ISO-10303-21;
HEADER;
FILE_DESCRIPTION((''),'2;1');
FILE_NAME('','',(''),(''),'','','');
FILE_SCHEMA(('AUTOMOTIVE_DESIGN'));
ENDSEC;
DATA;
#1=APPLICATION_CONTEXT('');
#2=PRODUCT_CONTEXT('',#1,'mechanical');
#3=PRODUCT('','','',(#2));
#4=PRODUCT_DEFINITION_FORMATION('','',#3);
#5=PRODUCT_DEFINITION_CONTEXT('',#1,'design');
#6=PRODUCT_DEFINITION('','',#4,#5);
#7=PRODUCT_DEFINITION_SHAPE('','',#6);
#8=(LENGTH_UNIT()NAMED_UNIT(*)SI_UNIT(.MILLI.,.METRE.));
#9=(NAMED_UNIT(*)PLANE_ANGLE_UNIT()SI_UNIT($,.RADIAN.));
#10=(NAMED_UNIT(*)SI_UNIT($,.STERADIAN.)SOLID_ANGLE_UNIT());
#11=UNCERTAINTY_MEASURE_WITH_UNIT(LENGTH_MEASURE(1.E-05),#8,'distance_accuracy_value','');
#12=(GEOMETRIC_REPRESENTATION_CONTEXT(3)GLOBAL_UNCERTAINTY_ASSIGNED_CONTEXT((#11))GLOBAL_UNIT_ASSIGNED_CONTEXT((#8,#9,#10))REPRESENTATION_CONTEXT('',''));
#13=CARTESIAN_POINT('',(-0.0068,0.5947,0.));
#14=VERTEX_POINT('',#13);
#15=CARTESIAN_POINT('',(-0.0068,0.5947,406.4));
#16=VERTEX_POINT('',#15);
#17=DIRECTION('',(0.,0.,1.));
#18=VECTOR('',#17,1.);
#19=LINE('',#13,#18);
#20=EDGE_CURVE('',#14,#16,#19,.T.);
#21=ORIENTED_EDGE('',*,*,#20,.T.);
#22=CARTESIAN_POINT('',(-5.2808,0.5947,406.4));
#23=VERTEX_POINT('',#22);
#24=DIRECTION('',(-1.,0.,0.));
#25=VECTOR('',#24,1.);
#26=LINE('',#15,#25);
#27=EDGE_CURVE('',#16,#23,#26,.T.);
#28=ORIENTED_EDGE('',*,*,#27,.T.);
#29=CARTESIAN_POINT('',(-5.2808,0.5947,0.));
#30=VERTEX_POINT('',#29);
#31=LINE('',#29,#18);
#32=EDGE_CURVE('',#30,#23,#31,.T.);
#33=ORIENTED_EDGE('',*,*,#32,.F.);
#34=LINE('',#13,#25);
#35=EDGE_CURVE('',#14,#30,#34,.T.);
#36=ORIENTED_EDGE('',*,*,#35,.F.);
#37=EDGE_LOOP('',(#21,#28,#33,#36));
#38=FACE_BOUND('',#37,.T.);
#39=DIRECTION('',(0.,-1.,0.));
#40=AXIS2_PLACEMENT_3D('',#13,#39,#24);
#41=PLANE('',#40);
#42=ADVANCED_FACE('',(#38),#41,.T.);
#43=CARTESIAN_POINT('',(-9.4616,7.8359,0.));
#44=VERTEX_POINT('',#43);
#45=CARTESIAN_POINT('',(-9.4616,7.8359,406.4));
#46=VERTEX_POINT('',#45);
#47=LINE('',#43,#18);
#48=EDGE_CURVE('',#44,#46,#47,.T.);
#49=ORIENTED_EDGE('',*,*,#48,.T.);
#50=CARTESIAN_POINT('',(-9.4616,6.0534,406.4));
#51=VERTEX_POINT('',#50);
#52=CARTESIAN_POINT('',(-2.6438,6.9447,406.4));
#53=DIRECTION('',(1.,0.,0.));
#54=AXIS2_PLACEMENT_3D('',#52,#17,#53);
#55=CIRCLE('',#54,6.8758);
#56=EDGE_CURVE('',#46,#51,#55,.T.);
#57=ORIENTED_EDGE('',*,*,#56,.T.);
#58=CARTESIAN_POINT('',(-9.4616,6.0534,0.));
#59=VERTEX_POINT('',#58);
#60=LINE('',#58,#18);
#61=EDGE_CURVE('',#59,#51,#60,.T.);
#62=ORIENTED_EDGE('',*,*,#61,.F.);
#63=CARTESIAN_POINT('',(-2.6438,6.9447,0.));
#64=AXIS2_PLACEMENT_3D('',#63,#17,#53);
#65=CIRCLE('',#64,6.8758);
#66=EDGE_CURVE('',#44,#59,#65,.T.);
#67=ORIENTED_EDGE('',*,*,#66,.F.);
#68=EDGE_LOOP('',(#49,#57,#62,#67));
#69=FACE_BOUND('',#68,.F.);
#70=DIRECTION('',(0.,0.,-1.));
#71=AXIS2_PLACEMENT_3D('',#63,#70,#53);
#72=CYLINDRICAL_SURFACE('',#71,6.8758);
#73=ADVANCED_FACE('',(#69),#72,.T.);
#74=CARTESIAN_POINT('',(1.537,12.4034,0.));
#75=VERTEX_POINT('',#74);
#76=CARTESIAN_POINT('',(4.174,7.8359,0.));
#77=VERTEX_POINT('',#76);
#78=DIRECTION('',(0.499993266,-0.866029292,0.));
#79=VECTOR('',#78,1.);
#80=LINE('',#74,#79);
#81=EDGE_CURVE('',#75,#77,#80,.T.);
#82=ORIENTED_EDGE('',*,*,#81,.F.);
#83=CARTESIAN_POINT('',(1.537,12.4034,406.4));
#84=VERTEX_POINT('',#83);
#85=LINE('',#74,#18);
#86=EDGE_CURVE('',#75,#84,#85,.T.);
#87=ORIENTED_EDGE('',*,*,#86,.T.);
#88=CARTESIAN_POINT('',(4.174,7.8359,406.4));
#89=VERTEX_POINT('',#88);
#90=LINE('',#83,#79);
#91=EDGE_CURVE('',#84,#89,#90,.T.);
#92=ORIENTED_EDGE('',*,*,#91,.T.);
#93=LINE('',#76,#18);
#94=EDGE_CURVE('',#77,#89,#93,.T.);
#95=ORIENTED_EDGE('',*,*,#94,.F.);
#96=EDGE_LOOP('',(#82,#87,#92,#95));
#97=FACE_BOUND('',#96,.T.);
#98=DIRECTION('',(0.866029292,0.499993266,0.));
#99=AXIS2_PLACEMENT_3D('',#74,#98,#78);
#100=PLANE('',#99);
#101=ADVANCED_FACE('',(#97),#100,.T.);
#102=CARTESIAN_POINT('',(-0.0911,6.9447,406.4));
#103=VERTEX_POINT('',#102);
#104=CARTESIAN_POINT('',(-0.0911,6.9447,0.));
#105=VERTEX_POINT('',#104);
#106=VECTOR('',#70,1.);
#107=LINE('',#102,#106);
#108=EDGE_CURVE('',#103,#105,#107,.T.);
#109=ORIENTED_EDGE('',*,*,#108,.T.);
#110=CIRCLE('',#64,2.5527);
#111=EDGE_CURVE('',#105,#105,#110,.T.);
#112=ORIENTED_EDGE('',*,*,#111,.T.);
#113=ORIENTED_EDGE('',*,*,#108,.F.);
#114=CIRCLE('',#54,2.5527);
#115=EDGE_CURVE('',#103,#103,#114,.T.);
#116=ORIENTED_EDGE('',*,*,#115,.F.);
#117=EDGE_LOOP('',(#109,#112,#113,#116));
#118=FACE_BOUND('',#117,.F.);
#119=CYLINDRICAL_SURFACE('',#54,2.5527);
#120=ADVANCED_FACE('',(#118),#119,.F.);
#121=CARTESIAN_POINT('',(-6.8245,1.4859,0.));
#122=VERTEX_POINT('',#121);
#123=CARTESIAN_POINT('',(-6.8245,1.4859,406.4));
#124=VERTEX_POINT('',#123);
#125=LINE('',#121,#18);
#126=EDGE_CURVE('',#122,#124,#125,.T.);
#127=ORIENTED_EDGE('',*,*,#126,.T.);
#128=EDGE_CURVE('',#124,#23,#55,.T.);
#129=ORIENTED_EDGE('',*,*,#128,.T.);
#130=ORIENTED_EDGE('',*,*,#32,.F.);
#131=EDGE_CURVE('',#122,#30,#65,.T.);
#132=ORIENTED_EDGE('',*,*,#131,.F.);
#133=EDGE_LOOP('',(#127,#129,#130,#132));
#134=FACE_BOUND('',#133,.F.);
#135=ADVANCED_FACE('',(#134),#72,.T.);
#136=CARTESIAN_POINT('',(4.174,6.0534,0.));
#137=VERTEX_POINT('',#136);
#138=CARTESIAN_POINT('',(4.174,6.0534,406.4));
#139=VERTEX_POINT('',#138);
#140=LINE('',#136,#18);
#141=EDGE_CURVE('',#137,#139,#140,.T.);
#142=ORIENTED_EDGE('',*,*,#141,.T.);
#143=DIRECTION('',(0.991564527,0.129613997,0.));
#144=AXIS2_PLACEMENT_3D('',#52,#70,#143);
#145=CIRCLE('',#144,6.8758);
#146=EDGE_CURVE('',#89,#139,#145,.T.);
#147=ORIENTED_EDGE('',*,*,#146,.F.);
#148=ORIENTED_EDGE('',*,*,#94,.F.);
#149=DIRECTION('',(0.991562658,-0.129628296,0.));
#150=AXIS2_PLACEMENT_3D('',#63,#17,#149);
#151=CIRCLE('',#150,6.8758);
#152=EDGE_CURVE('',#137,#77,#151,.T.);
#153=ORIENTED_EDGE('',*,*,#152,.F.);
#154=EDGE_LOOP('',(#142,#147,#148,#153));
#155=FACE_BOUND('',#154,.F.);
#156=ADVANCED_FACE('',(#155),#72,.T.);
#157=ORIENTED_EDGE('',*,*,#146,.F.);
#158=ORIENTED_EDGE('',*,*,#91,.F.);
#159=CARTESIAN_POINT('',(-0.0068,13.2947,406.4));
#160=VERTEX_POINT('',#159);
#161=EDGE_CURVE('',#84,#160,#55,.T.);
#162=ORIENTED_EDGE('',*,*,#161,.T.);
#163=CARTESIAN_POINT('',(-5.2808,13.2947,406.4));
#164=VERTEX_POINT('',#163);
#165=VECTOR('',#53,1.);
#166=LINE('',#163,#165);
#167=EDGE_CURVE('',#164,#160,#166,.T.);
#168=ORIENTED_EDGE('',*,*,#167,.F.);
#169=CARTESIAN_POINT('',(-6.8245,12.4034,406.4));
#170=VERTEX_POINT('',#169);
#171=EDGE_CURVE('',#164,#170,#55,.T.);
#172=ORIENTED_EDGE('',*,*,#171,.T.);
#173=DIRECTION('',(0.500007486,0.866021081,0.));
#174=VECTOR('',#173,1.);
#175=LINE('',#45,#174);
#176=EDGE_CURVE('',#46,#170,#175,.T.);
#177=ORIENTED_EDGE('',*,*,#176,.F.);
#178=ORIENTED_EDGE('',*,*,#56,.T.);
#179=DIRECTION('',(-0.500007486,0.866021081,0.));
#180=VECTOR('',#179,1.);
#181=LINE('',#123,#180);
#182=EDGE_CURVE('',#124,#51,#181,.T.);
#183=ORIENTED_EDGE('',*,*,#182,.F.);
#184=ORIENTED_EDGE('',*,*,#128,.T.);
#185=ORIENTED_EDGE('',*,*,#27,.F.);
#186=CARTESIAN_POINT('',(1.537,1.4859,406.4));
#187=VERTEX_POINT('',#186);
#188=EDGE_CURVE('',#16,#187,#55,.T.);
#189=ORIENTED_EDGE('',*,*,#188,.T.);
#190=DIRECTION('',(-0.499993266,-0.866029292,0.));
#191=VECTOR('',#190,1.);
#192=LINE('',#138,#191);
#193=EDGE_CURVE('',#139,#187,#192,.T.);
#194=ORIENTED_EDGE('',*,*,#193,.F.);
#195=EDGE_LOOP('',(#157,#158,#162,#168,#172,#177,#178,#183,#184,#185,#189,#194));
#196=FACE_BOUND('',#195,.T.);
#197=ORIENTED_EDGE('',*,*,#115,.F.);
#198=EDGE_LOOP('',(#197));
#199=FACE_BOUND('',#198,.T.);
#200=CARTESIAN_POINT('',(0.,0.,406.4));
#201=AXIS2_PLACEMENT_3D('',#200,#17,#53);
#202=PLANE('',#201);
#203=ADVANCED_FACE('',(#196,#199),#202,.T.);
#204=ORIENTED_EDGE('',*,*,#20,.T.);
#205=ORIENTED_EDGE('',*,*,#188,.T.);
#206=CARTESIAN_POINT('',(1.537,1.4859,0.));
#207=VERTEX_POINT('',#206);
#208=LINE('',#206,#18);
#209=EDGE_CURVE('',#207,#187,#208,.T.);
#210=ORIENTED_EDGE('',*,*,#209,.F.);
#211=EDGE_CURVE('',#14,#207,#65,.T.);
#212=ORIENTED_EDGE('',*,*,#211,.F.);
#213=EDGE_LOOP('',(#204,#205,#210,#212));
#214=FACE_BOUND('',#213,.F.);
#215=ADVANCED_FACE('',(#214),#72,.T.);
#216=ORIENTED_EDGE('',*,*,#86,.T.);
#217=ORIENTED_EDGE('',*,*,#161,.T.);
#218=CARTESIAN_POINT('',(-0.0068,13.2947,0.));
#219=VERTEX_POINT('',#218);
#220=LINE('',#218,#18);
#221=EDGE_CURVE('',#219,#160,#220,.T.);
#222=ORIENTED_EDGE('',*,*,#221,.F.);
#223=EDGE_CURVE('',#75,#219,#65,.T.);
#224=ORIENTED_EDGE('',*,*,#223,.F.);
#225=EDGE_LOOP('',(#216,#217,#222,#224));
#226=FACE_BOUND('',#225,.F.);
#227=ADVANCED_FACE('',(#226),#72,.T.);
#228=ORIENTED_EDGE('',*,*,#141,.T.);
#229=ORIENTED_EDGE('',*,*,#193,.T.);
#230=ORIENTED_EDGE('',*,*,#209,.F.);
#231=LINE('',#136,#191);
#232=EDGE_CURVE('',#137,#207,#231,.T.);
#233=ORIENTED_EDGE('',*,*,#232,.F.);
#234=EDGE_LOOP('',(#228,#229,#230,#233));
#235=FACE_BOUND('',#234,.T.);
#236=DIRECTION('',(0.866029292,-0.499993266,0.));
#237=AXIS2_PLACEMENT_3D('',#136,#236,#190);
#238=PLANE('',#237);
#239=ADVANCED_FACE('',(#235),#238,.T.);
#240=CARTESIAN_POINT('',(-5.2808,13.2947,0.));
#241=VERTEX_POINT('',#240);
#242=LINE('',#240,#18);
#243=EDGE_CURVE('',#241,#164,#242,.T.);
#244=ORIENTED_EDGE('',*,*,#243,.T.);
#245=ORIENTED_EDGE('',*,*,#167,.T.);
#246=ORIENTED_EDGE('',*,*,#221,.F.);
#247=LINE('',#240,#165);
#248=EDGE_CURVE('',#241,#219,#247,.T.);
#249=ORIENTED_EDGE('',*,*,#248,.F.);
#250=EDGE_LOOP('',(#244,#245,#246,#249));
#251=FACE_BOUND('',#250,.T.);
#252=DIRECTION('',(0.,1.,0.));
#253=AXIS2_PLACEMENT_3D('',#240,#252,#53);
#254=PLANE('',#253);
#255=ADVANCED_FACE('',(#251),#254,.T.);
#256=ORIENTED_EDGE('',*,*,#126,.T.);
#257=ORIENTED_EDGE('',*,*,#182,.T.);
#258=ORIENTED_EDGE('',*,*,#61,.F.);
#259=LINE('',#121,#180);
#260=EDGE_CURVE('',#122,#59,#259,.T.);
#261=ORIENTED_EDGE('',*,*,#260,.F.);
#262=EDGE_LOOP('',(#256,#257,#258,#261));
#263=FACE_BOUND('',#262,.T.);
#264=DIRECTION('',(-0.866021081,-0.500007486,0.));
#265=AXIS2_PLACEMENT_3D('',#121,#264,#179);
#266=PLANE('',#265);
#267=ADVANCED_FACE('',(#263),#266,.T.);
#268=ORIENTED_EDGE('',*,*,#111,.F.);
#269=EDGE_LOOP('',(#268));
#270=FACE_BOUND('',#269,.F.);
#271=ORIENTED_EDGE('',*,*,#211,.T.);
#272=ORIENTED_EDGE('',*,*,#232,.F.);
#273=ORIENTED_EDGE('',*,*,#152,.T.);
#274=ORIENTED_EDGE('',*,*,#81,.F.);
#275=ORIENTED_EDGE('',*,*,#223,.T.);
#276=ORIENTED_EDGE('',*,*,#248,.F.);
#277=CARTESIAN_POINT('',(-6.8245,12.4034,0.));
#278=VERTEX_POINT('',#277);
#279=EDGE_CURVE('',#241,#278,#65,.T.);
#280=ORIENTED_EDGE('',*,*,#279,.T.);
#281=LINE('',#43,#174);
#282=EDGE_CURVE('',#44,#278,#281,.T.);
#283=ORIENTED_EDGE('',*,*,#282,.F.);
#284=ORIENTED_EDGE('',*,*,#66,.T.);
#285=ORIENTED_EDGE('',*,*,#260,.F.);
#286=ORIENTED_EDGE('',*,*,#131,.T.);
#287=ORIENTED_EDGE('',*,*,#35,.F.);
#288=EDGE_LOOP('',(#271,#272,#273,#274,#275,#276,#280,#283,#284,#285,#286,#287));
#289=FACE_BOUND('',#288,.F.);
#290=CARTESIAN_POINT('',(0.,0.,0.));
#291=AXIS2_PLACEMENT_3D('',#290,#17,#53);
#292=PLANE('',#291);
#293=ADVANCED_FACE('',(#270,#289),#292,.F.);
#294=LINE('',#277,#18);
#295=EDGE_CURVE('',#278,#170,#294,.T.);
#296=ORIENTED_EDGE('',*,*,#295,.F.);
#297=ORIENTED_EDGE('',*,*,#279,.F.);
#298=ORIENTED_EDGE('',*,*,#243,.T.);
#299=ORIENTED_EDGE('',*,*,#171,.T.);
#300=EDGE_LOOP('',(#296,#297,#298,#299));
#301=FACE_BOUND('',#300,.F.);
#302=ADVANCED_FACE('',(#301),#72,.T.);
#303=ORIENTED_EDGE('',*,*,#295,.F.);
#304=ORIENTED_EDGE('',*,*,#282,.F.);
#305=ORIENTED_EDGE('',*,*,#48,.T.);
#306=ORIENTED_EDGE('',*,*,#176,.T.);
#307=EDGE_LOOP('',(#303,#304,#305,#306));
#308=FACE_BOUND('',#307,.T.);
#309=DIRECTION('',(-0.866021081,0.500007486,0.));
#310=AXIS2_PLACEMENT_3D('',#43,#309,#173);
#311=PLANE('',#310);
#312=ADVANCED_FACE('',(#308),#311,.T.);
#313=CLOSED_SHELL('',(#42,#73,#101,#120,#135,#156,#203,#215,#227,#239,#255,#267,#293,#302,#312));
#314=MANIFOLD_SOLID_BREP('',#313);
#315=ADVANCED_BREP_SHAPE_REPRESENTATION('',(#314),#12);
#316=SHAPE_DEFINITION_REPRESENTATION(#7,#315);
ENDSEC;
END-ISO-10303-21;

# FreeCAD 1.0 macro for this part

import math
import FreeCAD as App
import Part
import Sketcher
Q = App.Units.Quantity

doc = App.newDocument("Part")
body = doc.addObject("PartDesign::Body", "Body")

# Sketch on XY plane
sketch1 = doc.addObject("Sketcher::SketchObject", "Sketch")
body.addObject(sketch1)
sketch1.AttachmentSupport = (doc.XY_Plane, [""])
sketch1.MapMode = "FlatFace"
sketch1.addGeometry([
    Part.ArcOfCircle(Part.Circle(App.Vector(-2.6438, 6.9447, 0), App.Vector(0, 0, 1), 6.8758), math.radians(-7.448114), math.radians(7.447287)),  # 0
    Part.LineSegment(App.Vector(4.174, 7.8359, 0), App.Vector(1.537, 12.4034, 0)),  # 1
    Part.ArcOfCircle(Part.Circle(App.Vector(-2.6438, 6.9447, 0), App.Vector(0, 0, 1), 6.8758), math.radians(52.551618), math.radians(67.448081)),  # 2
    Part.LineSegment(App.Vector(-0.0068, 13.2947, 0), App.Vector(-5.2808, 13.2947, 0)),  # 3
    Part.ArcOfCircle(Part.Circle(App.Vector(-2.6438, 6.9447, 0), App.Vector(0, 0, 1), 6.8758), math.radians(112.551919), math.radians(127.447721)),  # 4
    Part.LineSegment(App.Vector(-6.8245, 12.4034, 0), App.Vector(-9.4616, 7.8359, 0)),  # 5
    Part.ArcOfCircle(Part.Circle(App.Vector(-2.6438, 6.9447, 0), App.Vector(0, 0, 1), 6.8758), math.radians(172.552713), math.radians(187.448114)),  # 6
    Part.LineSegment(App.Vector(-9.4616, 6.0534, 0), App.Vector(-6.8245, 1.4859, 0)),  # 7
    Part.ArcOfCircle(Part.Circle(App.Vector(-2.6438, 6.9447, 0), App.Vector(0, 0, 1), 6.8758), math.radians(-127.447214), math.radians(-112.551919)),  # 8
    Part.LineSegment(App.Vector(-5.2808, 0.5947, 0), App.Vector(-0.0068, 0.5947, 0)),  # 9
    Part.ArcOfCircle(Part.Circle(App.Vector(-2.6438, 6.9447, 0), App.Vector(0, 0, 1), 6.8758), math.radians(-67.448081), math.radians(-52.552124)),  # 10
    Part.LineSegment(App.Vector(1.537, 1.4859, 0), App.Vector(4.174, 6.0534, 0)),  # 11
], False)
sketch1.addConstraint([
    Sketcher.Constraint("Coincident", 0, 2, 1, 1),
    Sketcher.Constraint("Coincident", 1, 2, 2, 1),
    Sketcher.Constraint("Coincident", 2, 2, 3, 1),
    Sketcher.Constraint("Coincident", 3, 2, 4, 1),
    Sketcher.Constraint("Coincident", 4, 2, 5, 1),
    Sketcher.Constraint("Coincident", 5, 2, 6, 1),
    Sketcher.Constraint("Coincident", 6, 2, 7, 1),
    Sketcher.Constraint("Coincident", 7, 2, 8, 1),
    Sketcher.Constraint("Coincident", 8, 2, 9, 1),
    Sketcher.Constraint("Coincident", 9, 2, 10, 1),
    Sketcher.Constraint("Coincident", 10, 2, 11, 1),
    Sketcher.Constraint("Coincident", 11, 2, 0, 1),
    Sketcher.Constraint("Horizontal", 3),
    Sketcher.Constraint("Horizontal", 9),
    Sketcher.Constraint("Coincident", 2, 3, 0, 3),
    Sketcher.Constraint("Coincident", 4, 3, 0, 3),
    Sketcher.Constraint("Coincident", 6, 3, 0, 3),
    Sketcher.Constraint("Coincident", 8, 3, 0, 3),
    Sketcher.Constraint("Coincident", 10, 3, 0, 3),
    Sketcher.Constraint("Equal", 0, 2),
    Sketcher.Constraint("Equal", 2, 4),
    Sketcher.Constraint("Equal", 4, 6),
    Sketcher.Constraint("Equal", 6, 8),
    Sketcher.Constraint("Equal", 8, 10),
    Sketcher.Constraint("Parallel", 1, 7),
    Sketcher.Constraint("Parallel", 5, 11),
    Sketcher.Constraint("Horizontal", 1, 2, 4, 2),
    Sketcher.Constraint("Horizontal", 0, 2, 5, 2),
    Sketcher.Constraint("Horizontal", 7, 2, 10, 2),
    Sketcher.Constraint("Vertical", 5, 2, 6, 2),
    Sketcher.Constraint("Vertical", 3, 2, 8, 2),
    Sketcher.Constraint("Radius", 0, Q("0.2707 in")),
    Sketcher.Constraint("Angle", 1, Q("119.9996 deg")),
    Sketcher.Constraint("DistanceY", 0, 3, 2, 2, Q("0.25 in")),
    Sketcher.Constraint("DistanceY", 10, 2, 0, 2, Q("0.25 in")),
    Sketcher.Constraint("DistanceY", -1, 1, 0, 2, Q("0.3085 in")),
    Sketcher.Constraint("DistanceX", -1, 1, 1, 2, Q("0.0605 in")),
])
pad1 = doc.addObject("PartDesign::Pad", "Pad")
body.addObject(pad1)
pad1.Profile = sketch1
pad1.Length = Q("16 in")

# Sketch on XY plane
sketch2 = doc.addObject("Sketcher::SketchObject", "Sketch001")
body.addObject(sketch2)
sketch2.AttachmentSupport = (doc.XY_Plane, [""])
sketch2.MapMode = "FlatFace"
sketch2.AttachmentOffset = App.Placement(App.Vector(0, 0, 16 * 25.4), App.Rotation())
sketch2.addGeometry(Part.Circle(App.Vector(-2.6438, 6.9447, 0), App.Vector(0, 0, 1), 2.5527), False)
sketch2.addConstraint([
    Sketcher.Constraint("Diameter", 0, Q("0.201 in")),
    Sketcher.Constraint("DistanceX", 0, 3, -1, 1, Q("2.6438 mm")),
    Sketcher.Constraint("DistanceY", -1, 1, 0, 3, Q("6.9447 mm")),
])
pocket1 = doc.addObject("PartDesign::Pocket", "Pocket")
body.addObject(pocket1)
pocket1.Profile = sketch2
pocket1.Length = Q("16 in")

doc.recompute()
